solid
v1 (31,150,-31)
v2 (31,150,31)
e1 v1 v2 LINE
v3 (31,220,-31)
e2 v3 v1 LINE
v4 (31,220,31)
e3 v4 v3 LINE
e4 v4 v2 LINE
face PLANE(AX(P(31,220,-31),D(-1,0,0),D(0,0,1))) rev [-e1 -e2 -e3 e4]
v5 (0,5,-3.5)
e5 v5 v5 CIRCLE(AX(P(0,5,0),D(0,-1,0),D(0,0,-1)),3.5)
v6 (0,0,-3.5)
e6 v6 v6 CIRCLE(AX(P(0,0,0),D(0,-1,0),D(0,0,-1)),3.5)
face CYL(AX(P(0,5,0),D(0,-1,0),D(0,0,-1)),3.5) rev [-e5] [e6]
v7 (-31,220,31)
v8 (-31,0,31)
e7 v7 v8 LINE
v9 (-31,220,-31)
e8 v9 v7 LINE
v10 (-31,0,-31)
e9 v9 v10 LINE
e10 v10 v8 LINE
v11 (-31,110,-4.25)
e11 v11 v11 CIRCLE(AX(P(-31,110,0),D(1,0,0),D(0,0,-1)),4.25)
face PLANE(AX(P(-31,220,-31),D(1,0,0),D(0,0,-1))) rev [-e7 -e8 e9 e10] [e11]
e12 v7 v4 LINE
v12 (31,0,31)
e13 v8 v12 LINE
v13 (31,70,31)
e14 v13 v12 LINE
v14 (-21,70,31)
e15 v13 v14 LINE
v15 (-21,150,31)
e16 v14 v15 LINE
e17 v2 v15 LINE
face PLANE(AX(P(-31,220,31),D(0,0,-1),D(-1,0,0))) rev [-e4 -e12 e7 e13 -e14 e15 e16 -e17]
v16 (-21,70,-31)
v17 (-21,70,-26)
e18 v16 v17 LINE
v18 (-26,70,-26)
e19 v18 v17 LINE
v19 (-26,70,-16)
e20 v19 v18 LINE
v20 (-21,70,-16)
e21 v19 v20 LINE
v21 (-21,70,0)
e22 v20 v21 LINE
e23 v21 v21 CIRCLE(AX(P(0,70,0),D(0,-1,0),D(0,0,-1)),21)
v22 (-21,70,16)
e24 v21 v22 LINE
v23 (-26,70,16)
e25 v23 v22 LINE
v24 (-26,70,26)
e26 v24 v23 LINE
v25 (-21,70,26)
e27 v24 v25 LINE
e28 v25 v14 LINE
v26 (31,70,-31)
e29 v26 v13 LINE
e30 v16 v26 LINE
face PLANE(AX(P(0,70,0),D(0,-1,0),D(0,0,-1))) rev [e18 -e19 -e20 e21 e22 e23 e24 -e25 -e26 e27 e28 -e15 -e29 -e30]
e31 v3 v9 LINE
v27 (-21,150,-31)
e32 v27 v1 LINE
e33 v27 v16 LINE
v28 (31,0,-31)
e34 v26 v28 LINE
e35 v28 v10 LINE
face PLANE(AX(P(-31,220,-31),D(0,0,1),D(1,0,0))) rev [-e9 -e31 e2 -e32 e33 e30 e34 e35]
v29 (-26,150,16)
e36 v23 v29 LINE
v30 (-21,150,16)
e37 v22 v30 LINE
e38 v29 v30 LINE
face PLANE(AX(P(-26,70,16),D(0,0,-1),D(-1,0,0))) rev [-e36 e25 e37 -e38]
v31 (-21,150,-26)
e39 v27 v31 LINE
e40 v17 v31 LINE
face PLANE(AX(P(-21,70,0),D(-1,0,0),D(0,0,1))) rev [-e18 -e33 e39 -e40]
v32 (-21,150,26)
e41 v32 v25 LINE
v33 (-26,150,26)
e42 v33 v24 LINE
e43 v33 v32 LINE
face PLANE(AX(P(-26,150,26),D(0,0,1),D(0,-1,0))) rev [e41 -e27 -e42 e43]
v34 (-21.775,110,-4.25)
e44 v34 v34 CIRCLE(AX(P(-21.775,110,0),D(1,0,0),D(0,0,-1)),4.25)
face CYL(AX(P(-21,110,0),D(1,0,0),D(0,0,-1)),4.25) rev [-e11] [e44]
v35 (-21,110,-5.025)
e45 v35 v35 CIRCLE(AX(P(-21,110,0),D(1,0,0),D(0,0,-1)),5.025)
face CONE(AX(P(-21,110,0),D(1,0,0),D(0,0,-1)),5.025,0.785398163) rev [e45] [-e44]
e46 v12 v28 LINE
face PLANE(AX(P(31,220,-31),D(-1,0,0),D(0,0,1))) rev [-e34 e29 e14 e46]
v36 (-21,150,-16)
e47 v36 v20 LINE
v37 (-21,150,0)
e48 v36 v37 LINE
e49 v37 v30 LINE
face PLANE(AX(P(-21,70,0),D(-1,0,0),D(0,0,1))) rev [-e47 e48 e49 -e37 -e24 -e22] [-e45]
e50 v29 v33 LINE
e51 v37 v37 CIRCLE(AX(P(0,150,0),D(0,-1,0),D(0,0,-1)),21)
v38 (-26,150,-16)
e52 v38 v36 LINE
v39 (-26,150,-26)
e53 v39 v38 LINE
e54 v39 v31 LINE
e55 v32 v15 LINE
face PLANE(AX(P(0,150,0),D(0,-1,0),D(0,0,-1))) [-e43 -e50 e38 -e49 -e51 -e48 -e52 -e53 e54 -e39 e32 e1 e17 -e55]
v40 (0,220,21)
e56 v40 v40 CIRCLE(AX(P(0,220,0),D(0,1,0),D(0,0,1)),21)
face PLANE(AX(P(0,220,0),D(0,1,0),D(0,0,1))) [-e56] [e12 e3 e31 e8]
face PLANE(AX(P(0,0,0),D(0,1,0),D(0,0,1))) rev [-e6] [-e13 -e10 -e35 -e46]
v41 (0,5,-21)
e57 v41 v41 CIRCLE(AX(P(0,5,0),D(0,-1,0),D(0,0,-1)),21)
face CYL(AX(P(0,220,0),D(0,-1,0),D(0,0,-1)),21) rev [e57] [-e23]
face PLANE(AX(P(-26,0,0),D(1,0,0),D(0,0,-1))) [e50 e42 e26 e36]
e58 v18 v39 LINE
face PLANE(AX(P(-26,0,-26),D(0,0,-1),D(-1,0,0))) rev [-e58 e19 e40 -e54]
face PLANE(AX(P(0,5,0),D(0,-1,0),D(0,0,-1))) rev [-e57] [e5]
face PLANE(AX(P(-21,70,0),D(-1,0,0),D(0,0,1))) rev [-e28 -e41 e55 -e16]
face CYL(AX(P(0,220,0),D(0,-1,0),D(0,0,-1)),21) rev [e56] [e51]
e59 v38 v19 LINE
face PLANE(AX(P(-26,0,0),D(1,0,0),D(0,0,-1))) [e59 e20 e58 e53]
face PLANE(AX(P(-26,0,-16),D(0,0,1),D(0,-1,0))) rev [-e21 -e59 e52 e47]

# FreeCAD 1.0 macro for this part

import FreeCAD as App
import Part
import Sketcher
from FreeCAD import Vector

doc = App.newDocument("Part")
params = doc.addObject("Spreadsheet::Sheet", "Params")
for row, (alias, value) in enumerate([
    ("sketch1_diameter", "42 mm"),
    ("sketch1_width", "62 mm"),
    ("pad1_length", "220 mm"),
    ("sketch2_diameter", "42 mm"),
    ("sketch2_diameter2", "7 mm"),
    ("pad2_length", "5 mm"),
    ("pocket1_length", "80 mm"),
    ("sketch4_diameter", "8.5 mm"),
    ("hole_diameter", "8.5 mm"),
    ("hole_csink_diameter", "10.05 mm"),
    ("sketch5_width", "80 mm"),
    ("sketch5_height", "10 mm"),
    ("pocket2_length", "5 mm"),
    ("sketch6_width", "80 mm"),
    ("sketch6_height", "10 mm"),
    ("pocket3_length", "5 mm"),
], start=1):
    params.set(f"A{row}", alias)
    params.set(f"B{row}", "=" + value)
    params.setAlias(f"B{row}", alias)

body = doc.addObject("PartDesign::Body", "Body")

# Sketch on XZ plane
sketch1 = body.newObject("Sketcher::SketchObject", "Sketch")
sketch1.AttachmentSupport = (doc.getObject("XZ_Plane"), [""])
sketch1.MapMode = "FlatFace"
sketch1.addGeometry(Part.LineSegment(Vector(-31, -31, 0), Vector(-31, 31, 0)), False)
sketch1.addGeometry(Part.LineSegment(Vector(-31, 31, 0), Vector(31, 31, 0)), False)
sketch1.addGeometry(Part.LineSegment(Vector(31, 31, 0), Vector(31, -31, 0)), False)
sketch1.addGeometry(Part.LineSegment(Vector(31, -31, 0), Vector(-31, -31, 0)), False)
sketch1.addGeometry(Part.Circle(Vector(0, 0, 0), Vector(0, 0, 1), 21), False)
sketch1.addConstraint(Sketcher.Constraint("Coincident", 0, 2, 1, 1))
sketch1.addConstraint(Sketcher.Constraint("Coincident", 1, 2, 2, 1))
sketch1.addConstraint(Sketcher.Constraint("Coincident", 2, 2, 3, 1))
sketch1.addConstraint(Sketcher.Constraint("Coincident", 3, 2, 0, 1))
sketch1.addConstraint(Sketcher.Constraint("Vertical", 0))
sketch1.addConstraint(Sketcher.Constraint("Horizontal", 1))
sketch1.addConstraint(Sketcher.Constraint("Vertical", 2))
sketch1.addConstraint(Sketcher.Constraint("Horizontal", 3))
sketch1.addConstraint(Sketcher.Constraint("Coincident", 4, 3, -1, 1))
sketch1.addConstraint(Sketcher.Constraint("Symmetric", 0, 2, 2, 2, -1, 1))
sketch1.addConstraint(Sketcher.Constraint("Equal", 3, 0))
sketch1.addConstraint(Sketcher.Constraint("Diameter", 4, 42.0))
sketch1.addConstraint(Sketcher.Constraint("DistanceX", 1, 1, 1, 2, 62.0))
sketch1.setExpression("Constraints[11]", "Params.sketch1_diameter")
sketch1.setExpression("Constraints[12]", "Params.sketch1_width")
pad1 = body.newObject("PartDesign::Pad", "Pad")
pad1.Profile = sketch1
pad1.setExpression("Length", "Params.pad1_length")
pad1.Reversed = True

# Sketch on XZ plane
sketch2 = body.newObject("Sketcher::SketchObject", "Sketch001")
sketch2.AttachmentSupport = (doc.getObject("XZ_Plane"), [""])
sketch2.MapMode = "FlatFace"
sketch2.addGeometry(Part.Circle(Vector(0, 0, 0), Vector(0, 0, 1), 21), False)
sketch2.addGeometry(Part.Circle(Vector(0, 0, 0), Vector(0, 0, 1), 3.5), False)
sketch2.addConstraint(Sketcher.Constraint("Coincident", 0, 3, -1, 1))
sketch2.addConstraint(Sketcher.Constraint("Coincident", 1, 3, -1, 1))
sketch2.addConstraint(Sketcher.Constraint("Diameter", 0, 42.0))
sketch2.addConstraint(Sketcher.Constraint("Diameter", 1, 7.0))
sketch2.setExpression("Constraints[2]", "Params.sketch2_diameter")
sketch2.setExpression("Constraints[3]", "Params.sketch2_diameter2")
pad2 = body.newObject("PartDesign::Pad", "Pad001")
pad2.Profile = sketch2
pad2.setExpression("Length", "Params.pad2_length")
pad2.Reversed = True

# Sketch on XZ plane
sketch3 = body.newObject("Sketcher::SketchObject", "Sketch002")
sketch3.AttachmentSupport = (doc.getObject("XZ_Plane"), [""])
sketch3.MapMode = "FlatFace"
sketch3.AttachmentOffset = App.Placement(Vector(0, 0, -110), App.Rotation())
sketch3.addGeometry(Part.LineSegment(Vector(-21, -37, 0), Vector(-21, 37, 0)), False)
sketch3.addGeometry(Part.LineSegment(Vector(-21, 37, 0), Vector(47, 37, 0)), False)
sketch3.addGeometry(Part.LineSegment(Vector(47, 37, 0), Vector(47, -37, 0)), False)
sketch3.addGeometry(Part.LineSegment(Vector(47, -37, 0), Vector(-21, -37, 0)), False)
sketch3.addConstraint(Sketcher.Constraint("Coincident", 0, 2, 1, 1))
sketch3.addConstraint(Sketcher.Constraint("Coincident", 1, 2, 2, 1))
sketch3.addConstraint(Sketcher.Constraint("Coincident", 2, 2, 3, 1))
sketch3.addConstraint(Sketcher.Constraint("Coincident", 3, 2, 0, 1))
sketch3.addConstraint(Sketcher.Constraint("Vertical", 0))
sketch3.addConstraint(Sketcher.Constraint("Horizontal", 1))
sketch3.addConstraint(Sketcher.Constraint("Vertical", 2))
sketch3.addConstraint(Sketcher.Constraint("Horizontal", 3))
sketch3.addConstraint(Sketcher.Constraint("DistanceX", 0, 2, -1, 1, 21.0))
sketch3.addConstraint(Sketcher.Constraint("DistanceX", 1, 1, 1, 2, 68.20028))
sketch3.addConstraint(Sketcher.Constraint("DistanceY", -1, 1, 0, 2, 37.147801))
sketch3.addConstraint(Sketcher.Constraint("DistanceY", 0, 1, 0, 2, 73.883363))
pocket1 = body.newObject("PartDesign::Pocket", "Pocket")
pocket1.Profile = sketch3
pocket1.setExpression("Length", "Params.pocket1_length")
pocket1.Midplane = True

# Sketch on YZ plane
sketch4 = body.newObject("Sketcher::SketchObject", "Sketch003")
sketch4.AttachmentSupport = (doc.getObject("YZ_Plane"), [""])
sketch4.MapMode = "FlatFace"
sketch4.AttachmentOffset = App.Placement(Vector(0, 0, -21), App.Rotation())
sketch4.addGeometry(Part.Circle(Vector(110, 0, 0), Vector(0, 0, 1), 4.2), False)
sketch4.addConstraint(Sketcher.Constraint("PointOnObject", 0, 3, -1))
sketch4.addConstraint(Sketcher.Constraint("Diameter", 0, 8.5))
sketch4.addConstraint(Sketcher.Constraint("DistanceX", -1, 1, 0, 3, 110.0))
sketch4.setExpression("Constraints[1]", "Params.sketch4_diameter")
doc.recompute()
hole = body.newObject("PartDesign::Hole", "Hole")
hole.Profile = sketch4
hole.ThreadType = "None"
hole.setExpression("Diameter", "Params.hole_diameter")
hole.DepthType = "ThroughAll"
hole.HoleCutType = "Countersink"
hole.setExpression("HoleCutDiameter", "Params.hole_csink_diameter")
hole.HoleCutCountersinkAngle = 90

# Sketch on YZ plane
sketch5 = body.newObject("Sketcher::SketchObject", "Sketch004")
sketch5.AttachmentSupport = (doc.getObject("YZ_Plane"), [""])
sketch5.MapMode = "FlatFace"
sketch5.AttachmentOffset = App.Placement(Vector(0, 0, -21), App.Rotation())
sketch5.addGeometry(Part.LineSegment(Vector(150, -16, 0), Vector(70, -16, 0)), False)
sketch5.addGeometry(Part.LineSegment(Vector(70, -16, 0), Vector(70, -26, 0)), False)
sketch5.addGeometry(Part.LineSegment(Vector(70, -26, 0), Vector(150, -26, 0)), False)
sketch5.addGeometry(Part.LineSegment(Vector(150, -26, 0), Vector(150, -16, 0)), False)
sketch5.addConstraint(Sketcher.Constraint("Coincident", 0, 2, 1, 1))
sketch5.addConstraint(Sketcher.Constraint("Coincident", 1, 2, 2, 1))
sketch5.addConstraint(Sketcher.Constraint("Coincident", 2, 2, 3, 1))
sketch5.addConstraint(Sketcher.Constraint("Coincident", 3, 2, 0, 1))
sketch5.addConstraint(Sketcher.Constraint("Horizontal", 0))
sketch5.addConstraint(Sketcher.Constraint("Vertical", 1))
sketch5.addConstraint(Sketcher.Constraint("Horizontal", 2))
sketch5.addConstraint(Sketcher.Constraint("Vertical", 3))
sketch5.addConstraint(Sketcher.Constraint("DistanceX", 0, 2, 0, 1, 80.0))
sketch5.addConstraint(Sketcher.Constraint("DistanceY", 1, 2, 1, 1, 10.0))
sketch5.addConstraint(Sketcher.Constraint("DistanceX", -1, 1, 0, 2, 70.0))
sketch5.addConstraint(Sketcher.Constraint("DistanceY", 0, 2, -1, 1, 16.0))
sketch5.setExpression("Constraints[8]", "Params.sketch5_width")
sketch5.setExpression("Constraints[9]", "Params.sketch5_height")
pocket2 = body.newObject("PartDesign::Pocket", "Pocket001")
pocket2.Profile = sketch5
pocket2.setExpression("Length", "Params.pocket2_length")

# Sketch on YZ plane
sketch6 = body.newObject("Sketcher::SketchObject", "Sketch005")
sketch6.AttachmentSupport = (doc.getObject("YZ_Plane"), [""])
sketch6.MapMode = "FlatFace"
sketch6.AttachmentOffset = App.Placement(Vector(0, 0, -21), App.Rotation())
sketch6.addGeometry(Part.LineSegment(Vector(150, 26, 0), Vector(70, 26, 0)), False)
sketch6.addGeometry(Part.LineSegment(Vector(70, 26, 0), Vector(70, 16, 0)), False)
sketch6.addGeometry(Part.LineSegment(Vector(70, 16, 0), Vector(150, 16, 0)), False)
sketch6.addGeometry(Part.LineSegment(Vector(150, 16, 0), Vector(150, 26, 0)), False)
sketch6.addConstraint(Sketcher.Constraint("Coincident", 0, 2, 1, 1))
sketch6.addConstraint(Sketcher.Constraint("Coincident", 1, 2, 2, 1))
sketch6.addConstraint(Sketcher.Constraint("Coincident", 2, 2, 3, 1))
sketch6.addConstraint(Sketcher.Constraint("Coincident", 3, 2, 0, 1))
sketch6.addConstraint(Sketcher.Constraint("Horizontal", 0))
sketch6.addConstraint(Sketcher.Constraint("Vertical", 1))
sketch6.addConstraint(Sketcher.Constraint("Horizontal", 2))
sketch6.addConstraint(Sketcher.Constraint("Vertical", 3))
sketch6.addConstraint(Sketcher.Constraint("DistanceX", 0, 2, 0, 1, 80.0))
sketch6.addConstraint(Sketcher.Constraint("DistanceY", 1, 2, 1, 1, 10.0))
sketch6.addConstraint(Sketcher.Constraint("DistanceX", -1, 1, 0, 2, 70.0))
sketch6.addConstraint(Sketcher.Constraint("DistanceY", -1, 1, 0, 2, 26.0))
sketch6.setExpression("Constraints[8]", "Params.sketch6_width")
sketch6.setExpression("Constraints[9]", "Params.sketch6_height")
pocket3 = body.newObject("PartDesign::Pocket", "Pocket002")
pocket3.Profile = sketch6
pocket3.setExpression("Length", "Params.pocket3_length")

doc.recompute()
